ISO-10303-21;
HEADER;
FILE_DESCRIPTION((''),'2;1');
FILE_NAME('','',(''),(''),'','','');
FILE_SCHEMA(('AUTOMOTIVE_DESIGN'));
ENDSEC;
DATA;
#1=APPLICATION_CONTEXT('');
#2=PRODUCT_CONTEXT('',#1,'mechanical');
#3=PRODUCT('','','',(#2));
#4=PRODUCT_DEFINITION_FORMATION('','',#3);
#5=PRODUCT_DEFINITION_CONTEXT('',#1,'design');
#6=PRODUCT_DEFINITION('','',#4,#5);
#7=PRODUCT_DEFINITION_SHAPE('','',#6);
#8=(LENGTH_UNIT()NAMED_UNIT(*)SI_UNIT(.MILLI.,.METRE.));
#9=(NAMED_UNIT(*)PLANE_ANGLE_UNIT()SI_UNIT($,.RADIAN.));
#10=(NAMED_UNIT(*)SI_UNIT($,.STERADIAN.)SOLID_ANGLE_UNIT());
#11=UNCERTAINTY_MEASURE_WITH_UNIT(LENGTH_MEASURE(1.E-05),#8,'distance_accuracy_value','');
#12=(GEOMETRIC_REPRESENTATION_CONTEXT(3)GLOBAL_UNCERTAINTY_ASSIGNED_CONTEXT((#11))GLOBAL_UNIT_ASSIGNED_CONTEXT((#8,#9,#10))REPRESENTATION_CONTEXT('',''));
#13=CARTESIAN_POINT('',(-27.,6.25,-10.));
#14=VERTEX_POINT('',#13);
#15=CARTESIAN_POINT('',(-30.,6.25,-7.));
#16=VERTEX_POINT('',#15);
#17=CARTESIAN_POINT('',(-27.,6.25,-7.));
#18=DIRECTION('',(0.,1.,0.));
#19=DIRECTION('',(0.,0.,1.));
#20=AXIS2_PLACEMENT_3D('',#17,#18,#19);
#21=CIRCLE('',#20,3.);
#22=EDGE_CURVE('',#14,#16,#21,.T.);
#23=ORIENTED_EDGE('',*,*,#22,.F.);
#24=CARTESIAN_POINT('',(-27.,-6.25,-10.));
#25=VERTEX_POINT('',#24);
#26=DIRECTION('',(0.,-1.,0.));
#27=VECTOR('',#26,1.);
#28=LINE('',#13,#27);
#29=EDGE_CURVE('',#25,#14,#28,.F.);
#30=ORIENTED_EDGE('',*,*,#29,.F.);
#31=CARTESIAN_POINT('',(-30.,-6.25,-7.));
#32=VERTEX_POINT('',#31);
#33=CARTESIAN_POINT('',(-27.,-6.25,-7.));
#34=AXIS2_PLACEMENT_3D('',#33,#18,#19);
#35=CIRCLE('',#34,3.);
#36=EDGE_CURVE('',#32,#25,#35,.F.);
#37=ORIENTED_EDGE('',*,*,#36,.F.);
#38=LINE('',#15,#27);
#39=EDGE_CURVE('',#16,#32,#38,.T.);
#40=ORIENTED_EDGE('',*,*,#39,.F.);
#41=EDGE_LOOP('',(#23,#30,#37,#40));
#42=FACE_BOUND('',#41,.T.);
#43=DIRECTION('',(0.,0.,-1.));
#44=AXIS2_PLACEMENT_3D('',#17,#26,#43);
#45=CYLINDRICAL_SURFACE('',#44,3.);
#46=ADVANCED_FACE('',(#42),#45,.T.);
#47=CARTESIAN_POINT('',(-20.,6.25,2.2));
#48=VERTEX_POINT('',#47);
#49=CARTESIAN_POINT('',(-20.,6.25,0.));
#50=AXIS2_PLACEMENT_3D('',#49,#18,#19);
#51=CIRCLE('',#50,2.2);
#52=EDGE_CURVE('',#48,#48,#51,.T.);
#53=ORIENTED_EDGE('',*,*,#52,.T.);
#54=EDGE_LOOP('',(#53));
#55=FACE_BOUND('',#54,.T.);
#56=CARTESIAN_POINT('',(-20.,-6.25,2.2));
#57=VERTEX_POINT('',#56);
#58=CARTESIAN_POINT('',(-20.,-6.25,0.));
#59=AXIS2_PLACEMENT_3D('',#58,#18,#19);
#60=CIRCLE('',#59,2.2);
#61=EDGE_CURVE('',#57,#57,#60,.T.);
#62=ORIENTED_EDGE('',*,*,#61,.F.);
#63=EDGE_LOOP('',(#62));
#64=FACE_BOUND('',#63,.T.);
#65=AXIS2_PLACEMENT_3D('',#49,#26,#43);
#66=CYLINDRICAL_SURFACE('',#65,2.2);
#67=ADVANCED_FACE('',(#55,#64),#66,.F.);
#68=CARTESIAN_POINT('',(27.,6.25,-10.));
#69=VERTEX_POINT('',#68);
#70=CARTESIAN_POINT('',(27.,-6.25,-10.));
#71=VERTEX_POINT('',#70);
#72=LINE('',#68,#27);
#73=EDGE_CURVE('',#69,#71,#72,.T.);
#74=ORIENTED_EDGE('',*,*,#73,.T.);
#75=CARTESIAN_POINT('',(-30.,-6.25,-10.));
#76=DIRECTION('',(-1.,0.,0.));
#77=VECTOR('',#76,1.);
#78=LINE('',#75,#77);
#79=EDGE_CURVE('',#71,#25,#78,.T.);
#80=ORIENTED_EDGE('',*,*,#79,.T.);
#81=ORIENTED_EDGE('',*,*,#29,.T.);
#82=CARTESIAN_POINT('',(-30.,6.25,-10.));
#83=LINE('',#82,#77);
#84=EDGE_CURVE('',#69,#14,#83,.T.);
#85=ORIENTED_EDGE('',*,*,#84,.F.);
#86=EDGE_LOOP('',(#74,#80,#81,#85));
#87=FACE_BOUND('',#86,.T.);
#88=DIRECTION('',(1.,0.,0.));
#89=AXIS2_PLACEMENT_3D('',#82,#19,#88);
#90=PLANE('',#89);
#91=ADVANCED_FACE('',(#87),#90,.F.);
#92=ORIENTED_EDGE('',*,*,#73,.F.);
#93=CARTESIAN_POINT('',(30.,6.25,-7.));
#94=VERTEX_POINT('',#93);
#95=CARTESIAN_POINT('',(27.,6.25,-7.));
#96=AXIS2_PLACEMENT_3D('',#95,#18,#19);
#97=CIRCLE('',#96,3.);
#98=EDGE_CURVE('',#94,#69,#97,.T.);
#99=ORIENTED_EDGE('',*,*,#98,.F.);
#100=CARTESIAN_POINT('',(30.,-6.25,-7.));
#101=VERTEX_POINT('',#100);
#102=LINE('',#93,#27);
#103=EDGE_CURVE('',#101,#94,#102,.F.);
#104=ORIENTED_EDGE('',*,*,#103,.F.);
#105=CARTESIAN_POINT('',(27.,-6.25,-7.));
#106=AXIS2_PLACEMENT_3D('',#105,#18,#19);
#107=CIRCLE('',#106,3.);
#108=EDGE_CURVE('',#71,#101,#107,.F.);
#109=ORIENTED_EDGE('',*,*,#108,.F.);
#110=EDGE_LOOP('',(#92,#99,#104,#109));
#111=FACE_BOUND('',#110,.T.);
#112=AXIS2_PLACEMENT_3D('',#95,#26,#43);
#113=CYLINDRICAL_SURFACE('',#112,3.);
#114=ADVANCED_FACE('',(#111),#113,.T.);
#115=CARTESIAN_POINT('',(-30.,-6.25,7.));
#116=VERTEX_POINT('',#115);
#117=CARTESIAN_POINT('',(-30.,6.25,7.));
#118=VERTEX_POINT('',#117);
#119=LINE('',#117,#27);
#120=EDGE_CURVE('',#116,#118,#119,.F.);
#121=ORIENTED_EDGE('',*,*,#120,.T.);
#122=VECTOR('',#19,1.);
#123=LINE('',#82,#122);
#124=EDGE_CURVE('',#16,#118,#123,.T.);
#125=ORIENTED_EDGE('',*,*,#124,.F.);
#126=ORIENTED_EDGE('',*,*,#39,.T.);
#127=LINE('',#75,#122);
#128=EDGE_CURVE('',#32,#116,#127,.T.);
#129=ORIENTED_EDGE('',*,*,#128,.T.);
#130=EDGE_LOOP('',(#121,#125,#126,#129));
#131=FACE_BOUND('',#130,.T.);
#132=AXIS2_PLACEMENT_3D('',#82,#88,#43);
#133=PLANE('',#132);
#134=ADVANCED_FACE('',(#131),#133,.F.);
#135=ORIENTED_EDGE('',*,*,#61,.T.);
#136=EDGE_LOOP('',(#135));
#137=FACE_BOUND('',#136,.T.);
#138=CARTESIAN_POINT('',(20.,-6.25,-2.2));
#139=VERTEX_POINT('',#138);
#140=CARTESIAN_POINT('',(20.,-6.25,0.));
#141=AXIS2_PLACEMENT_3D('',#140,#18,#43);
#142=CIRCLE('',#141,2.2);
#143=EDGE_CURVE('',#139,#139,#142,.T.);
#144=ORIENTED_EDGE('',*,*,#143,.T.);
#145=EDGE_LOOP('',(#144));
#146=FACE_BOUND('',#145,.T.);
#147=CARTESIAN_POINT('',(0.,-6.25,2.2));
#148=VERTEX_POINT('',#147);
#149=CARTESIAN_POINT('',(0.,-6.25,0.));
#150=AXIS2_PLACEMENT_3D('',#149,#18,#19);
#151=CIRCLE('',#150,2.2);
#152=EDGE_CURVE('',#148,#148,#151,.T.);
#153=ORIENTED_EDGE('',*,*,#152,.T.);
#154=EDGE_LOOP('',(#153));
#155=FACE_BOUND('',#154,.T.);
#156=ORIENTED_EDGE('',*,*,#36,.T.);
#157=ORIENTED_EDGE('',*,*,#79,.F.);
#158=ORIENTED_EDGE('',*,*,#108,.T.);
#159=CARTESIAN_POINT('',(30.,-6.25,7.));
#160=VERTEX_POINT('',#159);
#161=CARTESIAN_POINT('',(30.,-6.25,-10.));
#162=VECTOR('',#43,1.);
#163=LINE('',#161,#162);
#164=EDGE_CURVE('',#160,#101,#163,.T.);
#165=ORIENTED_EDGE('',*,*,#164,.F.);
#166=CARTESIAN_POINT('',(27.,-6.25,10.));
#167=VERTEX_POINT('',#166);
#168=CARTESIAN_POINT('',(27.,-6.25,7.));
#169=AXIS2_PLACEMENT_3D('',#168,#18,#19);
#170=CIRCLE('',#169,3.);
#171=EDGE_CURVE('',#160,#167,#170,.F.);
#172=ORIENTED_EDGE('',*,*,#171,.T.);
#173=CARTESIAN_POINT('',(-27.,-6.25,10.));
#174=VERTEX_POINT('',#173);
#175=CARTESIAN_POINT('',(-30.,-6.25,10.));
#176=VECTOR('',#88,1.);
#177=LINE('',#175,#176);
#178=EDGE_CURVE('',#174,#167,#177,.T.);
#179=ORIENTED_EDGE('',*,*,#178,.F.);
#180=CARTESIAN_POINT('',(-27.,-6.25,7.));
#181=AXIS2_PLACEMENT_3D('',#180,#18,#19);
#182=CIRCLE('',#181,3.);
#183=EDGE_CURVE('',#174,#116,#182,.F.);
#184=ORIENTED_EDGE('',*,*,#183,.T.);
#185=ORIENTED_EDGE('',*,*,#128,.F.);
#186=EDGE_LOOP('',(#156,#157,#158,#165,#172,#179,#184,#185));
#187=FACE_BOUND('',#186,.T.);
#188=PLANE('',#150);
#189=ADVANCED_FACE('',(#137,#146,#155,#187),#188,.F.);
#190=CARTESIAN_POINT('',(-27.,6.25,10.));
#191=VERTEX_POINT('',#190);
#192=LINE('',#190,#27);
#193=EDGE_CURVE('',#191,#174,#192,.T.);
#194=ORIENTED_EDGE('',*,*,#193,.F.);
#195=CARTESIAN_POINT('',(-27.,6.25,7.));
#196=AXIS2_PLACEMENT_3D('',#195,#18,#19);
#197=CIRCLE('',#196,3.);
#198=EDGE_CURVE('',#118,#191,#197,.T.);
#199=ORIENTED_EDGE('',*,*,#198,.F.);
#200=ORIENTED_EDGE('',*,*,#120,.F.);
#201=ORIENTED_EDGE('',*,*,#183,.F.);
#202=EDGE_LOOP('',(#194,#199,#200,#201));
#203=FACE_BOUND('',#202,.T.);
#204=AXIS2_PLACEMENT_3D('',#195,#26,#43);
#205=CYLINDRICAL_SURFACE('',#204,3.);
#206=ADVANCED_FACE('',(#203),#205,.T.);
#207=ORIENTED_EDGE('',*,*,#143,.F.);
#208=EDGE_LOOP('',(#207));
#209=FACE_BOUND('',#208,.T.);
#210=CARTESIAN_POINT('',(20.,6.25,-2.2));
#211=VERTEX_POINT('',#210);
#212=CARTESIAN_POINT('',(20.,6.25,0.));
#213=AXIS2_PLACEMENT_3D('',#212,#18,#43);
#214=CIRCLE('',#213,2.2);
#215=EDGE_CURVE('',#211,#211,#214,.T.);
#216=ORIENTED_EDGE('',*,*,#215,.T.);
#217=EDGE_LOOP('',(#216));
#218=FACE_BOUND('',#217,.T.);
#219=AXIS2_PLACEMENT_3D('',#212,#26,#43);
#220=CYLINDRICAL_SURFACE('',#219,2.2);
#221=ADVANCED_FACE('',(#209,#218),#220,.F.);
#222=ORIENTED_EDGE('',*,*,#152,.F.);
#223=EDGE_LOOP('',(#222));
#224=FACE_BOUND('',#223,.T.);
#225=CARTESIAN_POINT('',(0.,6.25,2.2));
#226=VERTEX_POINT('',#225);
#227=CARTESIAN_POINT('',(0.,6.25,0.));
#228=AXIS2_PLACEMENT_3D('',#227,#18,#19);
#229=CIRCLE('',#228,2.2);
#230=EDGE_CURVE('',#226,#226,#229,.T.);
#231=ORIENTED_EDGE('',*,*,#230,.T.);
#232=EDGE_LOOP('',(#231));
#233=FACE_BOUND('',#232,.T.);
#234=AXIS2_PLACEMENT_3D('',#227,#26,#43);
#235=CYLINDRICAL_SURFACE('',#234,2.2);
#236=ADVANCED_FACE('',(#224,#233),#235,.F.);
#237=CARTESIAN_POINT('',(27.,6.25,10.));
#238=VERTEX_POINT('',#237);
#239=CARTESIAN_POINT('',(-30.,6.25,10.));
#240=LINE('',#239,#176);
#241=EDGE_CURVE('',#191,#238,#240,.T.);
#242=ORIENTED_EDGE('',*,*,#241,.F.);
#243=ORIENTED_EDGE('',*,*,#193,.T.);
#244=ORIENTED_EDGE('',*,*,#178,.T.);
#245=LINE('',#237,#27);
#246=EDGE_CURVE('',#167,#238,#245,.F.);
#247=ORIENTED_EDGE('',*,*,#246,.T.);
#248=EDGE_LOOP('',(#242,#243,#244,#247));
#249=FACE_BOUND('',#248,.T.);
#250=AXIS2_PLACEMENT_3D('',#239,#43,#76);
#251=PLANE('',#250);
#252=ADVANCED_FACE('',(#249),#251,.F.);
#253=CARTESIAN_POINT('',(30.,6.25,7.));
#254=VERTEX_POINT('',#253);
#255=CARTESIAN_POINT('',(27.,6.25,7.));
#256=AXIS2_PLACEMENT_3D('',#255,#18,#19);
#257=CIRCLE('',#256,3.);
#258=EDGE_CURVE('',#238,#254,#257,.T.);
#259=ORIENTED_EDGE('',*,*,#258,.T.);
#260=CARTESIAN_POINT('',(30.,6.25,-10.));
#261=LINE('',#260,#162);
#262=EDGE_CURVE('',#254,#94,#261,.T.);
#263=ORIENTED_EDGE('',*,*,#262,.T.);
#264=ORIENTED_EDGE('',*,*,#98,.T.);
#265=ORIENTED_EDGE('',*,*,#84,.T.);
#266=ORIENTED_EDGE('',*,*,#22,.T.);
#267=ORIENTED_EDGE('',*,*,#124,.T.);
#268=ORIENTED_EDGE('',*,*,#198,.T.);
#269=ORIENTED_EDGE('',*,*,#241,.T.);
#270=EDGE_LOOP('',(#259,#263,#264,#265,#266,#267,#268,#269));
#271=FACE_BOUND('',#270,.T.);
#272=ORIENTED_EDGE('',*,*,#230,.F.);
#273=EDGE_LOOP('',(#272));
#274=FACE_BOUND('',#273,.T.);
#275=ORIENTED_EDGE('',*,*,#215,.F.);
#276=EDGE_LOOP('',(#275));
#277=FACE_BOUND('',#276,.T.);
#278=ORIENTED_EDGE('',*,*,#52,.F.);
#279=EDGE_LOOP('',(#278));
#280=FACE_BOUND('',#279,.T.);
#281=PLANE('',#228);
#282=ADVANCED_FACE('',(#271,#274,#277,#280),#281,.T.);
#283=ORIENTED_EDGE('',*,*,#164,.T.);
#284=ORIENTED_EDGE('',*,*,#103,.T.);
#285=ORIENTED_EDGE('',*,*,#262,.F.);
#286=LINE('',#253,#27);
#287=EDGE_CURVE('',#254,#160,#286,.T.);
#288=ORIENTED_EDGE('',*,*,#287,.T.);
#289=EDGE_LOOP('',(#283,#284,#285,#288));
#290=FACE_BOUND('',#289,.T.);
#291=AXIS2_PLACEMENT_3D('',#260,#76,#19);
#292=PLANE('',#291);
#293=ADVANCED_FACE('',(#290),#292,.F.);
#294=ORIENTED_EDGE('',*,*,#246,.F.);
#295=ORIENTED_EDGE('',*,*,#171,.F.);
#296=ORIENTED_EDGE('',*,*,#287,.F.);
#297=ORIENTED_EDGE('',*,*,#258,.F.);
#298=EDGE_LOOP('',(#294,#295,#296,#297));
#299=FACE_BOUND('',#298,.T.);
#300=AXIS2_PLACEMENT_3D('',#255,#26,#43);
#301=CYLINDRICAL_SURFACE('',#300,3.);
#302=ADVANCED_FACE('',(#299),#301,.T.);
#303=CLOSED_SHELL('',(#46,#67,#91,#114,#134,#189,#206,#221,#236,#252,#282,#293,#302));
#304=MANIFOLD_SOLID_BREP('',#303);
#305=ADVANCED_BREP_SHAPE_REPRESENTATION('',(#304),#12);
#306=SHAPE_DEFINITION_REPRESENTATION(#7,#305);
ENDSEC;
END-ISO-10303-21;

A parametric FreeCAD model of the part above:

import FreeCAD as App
import Part
import Sketcher
Q = App.Units.Quantity


def edges_at(feature, points):
    """Names of the edges that pass closest to the given points."""
    edges = feature.Shape.Edges
    near = lambda p: min(range(len(edges)), key=lambda i: edges[i].distToShape(Part.Vertex(*p))[0])
    return sorted({f"Edge{near(p) + 1}" for p in points})


def add_polygon(sketch, points):
    """Adds a closed chain of lines whose ends are joined by coincident constraints."""
    first, n = sketch.GeometryCount, len(points)
    for a, b in zip(points, points[1:] + points[:1]):
        sketch.addGeometry(Part.LineSegment(App.Vector(*a, 0), App.Vector(*b, 0)), False)
    for i in range(n):
        sketch.addConstraint(Sketcher.Constraint("Coincident", first + i, 2, first + (i + 1) % n, 1))

doc = App.newDocument("Part")
body = doc.addObject("PartDesign::Body", "Body")

# Sketch on XZ plane
sketch1 = body.newObject("Sketcher::SketchObject", "Sketch")
sketch1.AttachmentSupport = (doc.getObject("XZ_Plane"), [""])
sketch1.MapMode = "FlatFace"
add_polygon(sketch1, [(-30, -10), (-30, 10), (30, 10), (30, -10)])  # lines 0-3
sketch1.addGeometry(Part.Circle(App.Vector(-20, 0, 0), App.Vector(0, 0, 1), 2.2), False)  # 4
sketch1.addGeometry(Part.Circle(App.Vector(0, 0, 0), App.Vector(0, 0, 1), 2.2), False)  # 5
sketch1.addGeometry(Part.Circle(App.Vector(20, 0, 0), App.Vector(0, 0, 1), 2.2), False)  # 6
sketch1.addConstraint([
    Sketcher.Constraint("Vertical", 0),
    Sketcher.Constraint("Horizontal", 1),
    Sketcher.Constraint("Vertical", 2),
    Sketcher.Constraint("Horizontal", 3),
    Sketcher.Constraint("Coincident", 5, 3, -1, 1),
    Sketcher.Constraint("Equal", 4, 5),
    Sketcher.Constraint("Equal", 5, 6),
    Sketcher.Constraint("Symmetric", 4, 3, 6, 3, -1, 1),
    Sketcher.Constraint("Symmetric", 0, 2, 2, 2, -1, 1),
    Sketcher.Constraint("PointOnObject", 4, 3, -1),
    Sketcher.Constraint("Diameter", 4, Q("4.4 mm")),
    Sketcher.Constraint("DistanceX", 1, 1, 1, 2, Q("60 mm")),
    Sketcher.Constraint("DistanceY", 0, 1, 0, 2, Q("20 mm")),
    Sketcher.Constraint("DistanceX", 4, 3, -1, 1, Q("20 mm")),
])
pad1 = body.newObject("PartDesign::Pad", "Pad")
pad1.Profile = sketch1
pad1.Length = 12.5
pad1.Midplane = True
doc.recompute()

fillet = body.newObject("PartDesign::Fillet", "Fillet")
fillet.Base = (pad1, edges_at(pad1, [
    (30, 0, 10),
    (-30, 0, 10),
    (-30, 0, -10),
    (30, 0, -10),
]))
fillet.Radius = 3

doc.recompute()
